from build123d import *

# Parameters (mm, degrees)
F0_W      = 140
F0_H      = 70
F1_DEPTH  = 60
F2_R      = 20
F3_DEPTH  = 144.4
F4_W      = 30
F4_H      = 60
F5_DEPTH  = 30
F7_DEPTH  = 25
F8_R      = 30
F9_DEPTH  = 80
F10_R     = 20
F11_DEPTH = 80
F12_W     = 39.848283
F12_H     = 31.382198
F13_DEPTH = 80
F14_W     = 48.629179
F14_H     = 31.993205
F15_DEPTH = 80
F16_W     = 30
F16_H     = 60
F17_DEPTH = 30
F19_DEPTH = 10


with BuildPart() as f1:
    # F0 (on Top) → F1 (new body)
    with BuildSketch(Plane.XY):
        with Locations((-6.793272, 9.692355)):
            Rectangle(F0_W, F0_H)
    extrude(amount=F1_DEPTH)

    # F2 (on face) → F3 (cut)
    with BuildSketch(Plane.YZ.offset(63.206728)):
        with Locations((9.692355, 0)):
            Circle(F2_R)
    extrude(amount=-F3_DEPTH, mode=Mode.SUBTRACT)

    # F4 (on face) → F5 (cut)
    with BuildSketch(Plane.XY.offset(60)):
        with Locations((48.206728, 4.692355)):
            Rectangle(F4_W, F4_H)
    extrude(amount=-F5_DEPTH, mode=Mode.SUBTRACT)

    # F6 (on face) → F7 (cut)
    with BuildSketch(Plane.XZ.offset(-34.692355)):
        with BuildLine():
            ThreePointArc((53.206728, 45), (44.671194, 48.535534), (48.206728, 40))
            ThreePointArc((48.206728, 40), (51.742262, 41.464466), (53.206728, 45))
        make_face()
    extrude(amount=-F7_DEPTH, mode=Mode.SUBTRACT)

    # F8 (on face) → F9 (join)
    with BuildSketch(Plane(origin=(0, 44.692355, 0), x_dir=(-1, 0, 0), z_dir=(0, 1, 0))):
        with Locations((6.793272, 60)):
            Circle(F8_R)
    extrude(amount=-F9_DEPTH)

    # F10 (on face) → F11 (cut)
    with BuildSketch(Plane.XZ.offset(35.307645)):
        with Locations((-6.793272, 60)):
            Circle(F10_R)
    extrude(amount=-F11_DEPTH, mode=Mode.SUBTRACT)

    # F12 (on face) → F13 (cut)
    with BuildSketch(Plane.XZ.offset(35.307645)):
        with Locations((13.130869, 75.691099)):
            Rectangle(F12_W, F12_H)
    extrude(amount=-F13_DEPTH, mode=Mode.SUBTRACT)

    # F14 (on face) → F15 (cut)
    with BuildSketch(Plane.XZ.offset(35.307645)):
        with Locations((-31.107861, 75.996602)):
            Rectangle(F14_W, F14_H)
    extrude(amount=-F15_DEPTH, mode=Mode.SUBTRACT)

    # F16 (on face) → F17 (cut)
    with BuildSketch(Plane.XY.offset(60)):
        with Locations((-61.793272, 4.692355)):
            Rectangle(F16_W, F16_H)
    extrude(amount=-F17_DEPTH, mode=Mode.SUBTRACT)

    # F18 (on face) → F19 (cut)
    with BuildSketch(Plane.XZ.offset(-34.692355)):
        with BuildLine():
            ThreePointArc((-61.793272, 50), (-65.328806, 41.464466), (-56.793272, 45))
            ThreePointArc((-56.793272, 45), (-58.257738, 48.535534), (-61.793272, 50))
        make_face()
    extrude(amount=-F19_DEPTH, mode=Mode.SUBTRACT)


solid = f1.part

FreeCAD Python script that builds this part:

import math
import FreeCAD as App
import Part
import Sketcher
from FreeCAD import Vector
Q = App.Units.Quantity

doc = App.newDocument("Part")
body = doc.addObject("PartDesign::Body", "Body")

# Sketch on XY plane
sketch1 = body.newObject("Sketcher::SketchObject", "Sketch")
sketch1.AttachmentSupport = (doc.getObject("XY_Plane"), [""])
sketch1.MapMode = "FlatFace"
sketch1.addGeometry([
    Part.LineSegment(Vector(-77, 45, 0), Vector(-77, -25, 0)),
    Part.LineSegment(Vector(-77, -25, 0), Vector(63, -25, 0)),
    Part.LineSegment(Vector(63, -25, 0), Vector(63, 45, 0)),
    Part.LineSegment(Vector(63, 45, 0), Vector(-77, 45, 0)),
], False)
sketch1.addConstraint([
    Sketcher.Constraint("Coincident", 0, 2, 1, 1),
    Sketcher.Constraint("Coincident", 1, 2, 2, 1),
    Sketcher.Constraint("Coincident", 2, 2, 3, 1),
    Sketcher.Constraint("Coincident", 3, 2, 0, 1),
    Sketcher.Constraint("Vertical", 0),
    Sketcher.Constraint("Horizontal", 1),
    Sketcher.Constraint("Vertical", 2),
    Sketcher.Constraint("Horizontal", 3),
    Sketcher.Constraint("DistanceX", 1, 1, 1, 2, Q("140 mm")),
    Sketcher.Constraint("DistanceY", 0, 2, 0, 1, Q("70 mm")),
    Sketcher.Constraint("DistanceX", 0, 2, -1, 1, Q("76.793272 mm")),
    Sketcher.Constraint("DistanceY", 0, 2, -1, 1, Q("25.307645 mm")),
])
pad1 = body.newObject("PartDesign::Pad", "Pad")
pad1.Profile = sketch1
pad1.Length = 60

# Sketch on YZ plane
sketch2 = body.newObject("Sketcher::SketchObject", "Sketch001")
sketch2.AttachmentSupport = (doc.getObject("YZ_Plane"), [""])
sketch2.MapMode = "FlatFace"
sketch2.AttachmentOffset = App.Placement(Vector(0, 0, 63.206728), App.Rotation())
sketch2.addGeometry(Part.Circle(Vector(10, 0, 0), Vector(0, 0, 1), 20), False)
sketch2.addConstraint([
    Sketcher.Constraint("PointOnObject", 0, 3, -1),
    Sketcher.Constraint("Diameter", 0, Q("40 mm")),
    Sketcher.Constraint("DistanceX", -1, 1, 0, 3, Q("9.692355 mm")),
])
pocket1 = body.newObject("PartDesign::Pocket", "Pocket")
pocket1.Profile = sketch2
pocket1.Length = 144.4

# Sketch on XY plane
sketch3 = body.newObject("Sketcher::SketchObject", "Sketch002")
sketch3.AttachmentSupport = (doc.getObject("XY_Plane"), [""])
sketch3.MapMode = "FlatFace"
sketch3.AttachmentOffset = App.Placement(Vector(0, 0, 60), App.Rotation())
sketch3.addGeometry([
    Part.LineSegment(Vector(33, 35, 0), Vector(33, -25, 0)),
    Part.LineSegment(Vector(33, -25, 0), Vector(63, -25, 0)),
    Part.LineSegment(Vector(63, -25, 0), Vector(63, 35, 0)),
    Part.LineSegment(Vector(63, 35, 0), Vector(33, 35, 0)),
], False)
sketch3.addConstraint([
    Sketcher.Constraint("Coincident", 0, 2, 1, 1),
    Sketcher.Constraint("Coincident", 1, 2, 2, 1),
    Sketcher.Constraint("Coincident", 2, 2, 3, 1),
    Sketcher.Constraint("Coincident", 3, 2, 0, 1),
    Sketcher.Constraint("Vertical", 0),
    Sketcher.Constraint("Horizontal", 1),
    Sketcher.Constraint("Vertical", 2),
    Sketcher.Constraint("Horizontal", 3),
    Sketcher.Constraint("DistanceX", 1, 1, 1, 2, Q("30 mm")),
    Sketcher.Constraint("DistanceY", 0, 2, 0, 1, Q("60 mm")),
    Sketcher.Constraint("DistanceX", -1, 1, 0, 2, Q("33.206728 mm")),
    Sketcher.Constraint("DistanceY", 0, 2, -1, 1, Q("25.307645 mm")),
])
pocket2 = body.newObject("PartDesign::Pocket", "Pocket001")
pocket2.Profile = sketch3
pocket2.Length = 30

# Sketch on XZ plane
sketch4 = body.newObject("Sketcher::SketchObject", "Sketch003")
sketch4.AttachmentSupport = (doc.getObject("XZ_Plane"), [""])
sketch4.MapMode = "FlatFace"
sketch4.AttachmentOffset = App.Placement(Vector(0, 0, -34.692355), App.Rotation())
sketch4.addGeometry([
    Part.ArcOfCircle(Part.Circle(Vector(48.2, 45, 0), Vector(0, 0, 1), 5), math.radians(0), math.radians(270)),
    Part.ArcOfCircle(Part.Circle(Vector(48.2, 45, 0), Vector(0, 0, 1), 5), math.radians(-90), math.radians(0)),
], False)
sketch4.addConstraint([
    Sketcher.Constraint("Tangent", 0, 1, 1, 2),
    Sketcher.Constraint("Coincident", 1, 1, 0, 2),
    Sketcher.Constraint("Horizontal", 1, 3, 0, 1),
    Sketcher.Constraint("Vertical", 0, 3, 1, 1),
    Sketcher.Constraint("Radius", 0, Q("5 mm")),
    Sketcher.Constraint("DistanceY", -1, 1, 0, 3, Q("45 mm")),
    Sketcher.Constraint("DistanceX", -1, 1, 1, 3, Q("48.206728 mm")),
])
pocket3 = body.newObject("PartDesign::Pocket", "Pocket002")
pocket3.Profile = sketch4
pocket3.Length = 25

# Sketch on XZ plane
sketch5 = body.newObject("Sketcher::SketchObject", "Sketch004")
sketch5.AttachmentSupport = (doc.getObject("XZ_Plane"), [""])
sketch5.MapMode = "FlatFace"
sketch5.AttachmentOffset = App.Placement(Vector(0, 0, -44.692355), App.Rotation())
sketch5.addGeometry(Part.Circle(Vector(-7, 60, 0), Vector(0, 0, 1), 30), False)
sketch5.addConstraint([
    Sketcher.Constraint("Diameter", 0, Q("60 mm")),
    Sketcher.Constraint("DistanceY", -1, 1, 0, 3, Q("60 mm")),
    Sketcher.Constraint("DistanceX", 0, 3, -1, 1, Q("6.793272 mm")),
])
pad2 = body.newObject("PartDesign::Pad", "Pad001")
pad2.Profile = sketch5
pad2.Length = 80

# Sketch on XZ plane
sketch6 = body.newObject("Sketcher::SketchObject", "Sketch005")
sketch6.AttachmentSupport = (doc.getObject("XZ_Plane"), [""])
sketch6.MapMode = "FlatFace"
sketch6.AttachmentOffset = App.Placement(Vector(0, 0, 35.307645), App.Rotation())
sketch6.addGeometry(Part.Circle(Vector(-7, 60, 0), Vector(0, 0, 1), 20), False)
sketch6.addConstraint([
    Sketcher.Constraint("Diameter", 0, Q("40 mm")),
    Sketcher.Constraint("DistanceY", -1, 1, 0, 3, Q("60 mm")),
    Sketcher.Constraint("DistanceX", 0, 3, -1, 1, Q("6.793272 mm")),
])
pocket4 = body.newObject("PartDesign::Pocket", "Pocket003")
pocket4.Profile = sketch6
pocket4.Length = 80

# Sketch on XZ plane
sketch7 = body.newObject("Sketcher::SketchObject", "Sketch006")
sketch7.AttachmentSupport = (doc.getObject("XZ_Plane"), [""])
sketch7.MapMode = "FlatFace"
sketch7.AttachmentOffset = App.Placement(Vector(0, 0, 35.307645), App.Rotation())
sketch7.addGeometry([
    Part.LineSegment(Vector(-7, 91, 0), Vector(-7, 60, 0)),
    Part.LineSegment(Vector(-7, 60, 0), Vector(33, 60, 0)),
    Part.LineSegment(Vector(33, 60, 0), Vector(33, 91, 0)),
    Part.LineSegment(Vector(33, 91, 0), Vector(-7, 91, 0)),
], False)
sketch7.addConstraint([
    Sketcher.Constraint("Coincident", 0, 2, 1, 1),
    Sketcher.Constraint("Coincident", 1, 2, 2, 1),
    Sketcher.Constraint("Coincident", 2, 2, 3, 1),
    Sketcher.Constraint("Coincident", 3, 2, 0, 1),
    Sketcher.Constraint("Vertical", 0),
    Sketcher.Constraint("Horizontal", 1),
    Sketcher.Constraint("Vertical", 2),
    Sketcher.Constraint("Horizontal", 3),
    Sketcher.Constraint("DistanceY", -1, 1, 0, 2, Q("60 mm")),
    Sketcher.Constraint("DistanceY", 0, 2, 0, 1, Q("31.382198 mm")),
    Sketcher.Constraint("DistanceX", 1, 1, 1, 2, Q("39.848283 mm")),
    Sketcher.Constraint("DistanceX", -1, 1, 1, 2, Q("33.055011 mm")),
])
pocket5 = body.newObject("PartDesign::Pocket", "Pocket004")
pocket5.Profile = sketch7
pocket5.Length = 80

# Sketch on XZ plane
sketch8 = body.newObject("Sketcher::SketchObject", "Sketch007")
sketch8.AttachmentSupport = (doc.getObject("XZ_Plane"), [""])
sketch8.MapMode = "FlatFace"
sketch8.AttachmentOffset = App.Placement(Vector(0, 0, 35.307645), App.Rotation())
sketch8.addGeometry([
    Part.LineSegment(Vector(-55, 92, 0), Vector(-55, 60, 0)),
    Part.LineSegment(Vector(-55, 60, 0), Vector(-7, 60, 0)),
    Part.LineSegment(Vector(-7, 60, 0), Vector(-7, 92, 0)),
    Part.LineSegment(Vector(-7, 92, 0), Vector(-55, 92, 0)),
], False)
sketch8.addConstraint([
    Sketcher.Constraint("Coincident", 0, 2, 1, 1),
    Sketcher.Constraint("Coincident", 1, 2, 2, 1),
    Sketcher.Constraint("Coincident", 2, 2, 3, 1),
    Sketcher.Constraint("Coincident", 3, 2, 0, 1),
    Sketcher.Constraint("Vertical", 0),
    Sketcher.Constraint("Horizontal", 1),
    Sketcher.Constraint("Vertical", 2),
    Sketcher.Constraint("Horizontal", 3),
    Sketcher.Constraint("DistanceY", -1, 1, 0, 2, Q("60 mm")),
    Sketcher.Constraint("DistanceX", 1, 1, 1, 2, Q("48.629179 mm")),
    Sketcher.Constraint("DistanceY", 0, 2, 0, 1, Q("31.993205 mm")),
    Sketcher.Constraint("DistanceX", 0, 2, -1, 1, Q("55.42245 mm")),
])
pocket6 = body.newObject("PartDesign::Pocket", "Pocket005")
pocket6.Profile = sketch8
pocket6.Length = 80

# Sketch on XY plane
sketch9 = body.newObject("Sketcher::SketchObject", "Sketch008")
sketch9.AttachmentSupport = (doc.getObject("XY_Plane"), [""])
sketch9.MapMode = "FlatFace"
sketch9.AttachmentOffset = App.Placement(Vector(0, 0, 60), App.Rotation())
sketch9.addGeometry([
    Part.LineSegment(Vector(-77, 35, 0), Vector(-77, -25, 0)),
    Part.LineSegment(Vector(-77, -25, 0), Vector(-47, -25, 0)),
    Part.LineSegment(Vector(-47, -25, 0), Vector(-47, 35, 0)),
    Part.LineSegment(Vector(-47, 35, 0), Vector(-77, 35, 0)),
], False)
sketch9.addConstraint([
    Sketcher.Constraint("Coincident", 0, 2, 1, 1),
    Sketcher.Constraint("Coincident", 1, 2, 2, 1),
    Sketcher.Constraint("Coincident", 2, 2, 3, 1),
    Sketcher.Constraint("Coincident", 3, 2, 0, 1),
    Sketcher.Constraint("Vertical", 0),
    Sketcher.Constraint("Horizontal", 1),
    Sketcher.Constraint("Vertical", 2),
    Sketcher.Constraint("Horizontal", 3),
    Sketcher.Constraint("DistanceX", 1, 1, 1, 2, Q("30 mm")),
    Sketcher.Constraint("DistanceY", 0, 2, 0, 1, Q("60 mm")),
    Sketcher.Constraint("DistanceX", 0, 2, -1, 1, Q("76.793272 mm")),
    Sketcher.Constraint("DistanceY", 0, 2, -1, 1, Q("25.307645 mm")),
])
pocket7 = body.newObject("PartDesign::Pocket", "Pocket006")
pocket7.Profile = sketch9
pocket7.Length = 30

# Sketch on XZ plane
sketch10 = body.newObject("Sketcher::SketchObject", "Sketch009")
sketch10.AttachmentSupport = (doc.getObject("XZ_Plane"), [""])
sketch10.MapMode = "FlatFace"
sketch10.AttachmentOffset = App.Placement(Vector(0, 0, -34.692355), App.Rotation())
sketch10.addGeometry([
    Part.ArcOfCircle(Part.Circle(Vector(-61.8, 45, 0), Vector(0, 0, 1), 5), math.radians(90), math.radians(360)),
    Part.ArcOfCircle(Part.Circle(Vector(-61.8, 45, 0), Vector(0, 0, 1), 5), math.radians(0), math.radians(90)),
], False)
sketch10.addConstraint([
    Sketcher.Constraint("Tangent", 0, 1, 1, 2),
    Sketcher.Constraint("Coincident", 1, 1, 0, 2),
    Sketcher.Constraint("Horizontal", 0, 3, 1, 1),
    Sketcher.Constraint("Vertical", 1, 3, 0, 1),
    Sketcher.Constraint("Radius", 0, Q("5 mm")),
    Sketcher.Constraint("DistanceY", -1, 1, 0, 3, Q("45 mm")),
    Sketcher.Constraint("DistanceX", 1, 3, -1, 1, Q("61.793272 mm")),
])
pocket8 = body.newObject("PartDesign::Pocket", "Pocket007")
pocket8.Profile = sketch10
pocket8.Length = 10

doc.recompute()
